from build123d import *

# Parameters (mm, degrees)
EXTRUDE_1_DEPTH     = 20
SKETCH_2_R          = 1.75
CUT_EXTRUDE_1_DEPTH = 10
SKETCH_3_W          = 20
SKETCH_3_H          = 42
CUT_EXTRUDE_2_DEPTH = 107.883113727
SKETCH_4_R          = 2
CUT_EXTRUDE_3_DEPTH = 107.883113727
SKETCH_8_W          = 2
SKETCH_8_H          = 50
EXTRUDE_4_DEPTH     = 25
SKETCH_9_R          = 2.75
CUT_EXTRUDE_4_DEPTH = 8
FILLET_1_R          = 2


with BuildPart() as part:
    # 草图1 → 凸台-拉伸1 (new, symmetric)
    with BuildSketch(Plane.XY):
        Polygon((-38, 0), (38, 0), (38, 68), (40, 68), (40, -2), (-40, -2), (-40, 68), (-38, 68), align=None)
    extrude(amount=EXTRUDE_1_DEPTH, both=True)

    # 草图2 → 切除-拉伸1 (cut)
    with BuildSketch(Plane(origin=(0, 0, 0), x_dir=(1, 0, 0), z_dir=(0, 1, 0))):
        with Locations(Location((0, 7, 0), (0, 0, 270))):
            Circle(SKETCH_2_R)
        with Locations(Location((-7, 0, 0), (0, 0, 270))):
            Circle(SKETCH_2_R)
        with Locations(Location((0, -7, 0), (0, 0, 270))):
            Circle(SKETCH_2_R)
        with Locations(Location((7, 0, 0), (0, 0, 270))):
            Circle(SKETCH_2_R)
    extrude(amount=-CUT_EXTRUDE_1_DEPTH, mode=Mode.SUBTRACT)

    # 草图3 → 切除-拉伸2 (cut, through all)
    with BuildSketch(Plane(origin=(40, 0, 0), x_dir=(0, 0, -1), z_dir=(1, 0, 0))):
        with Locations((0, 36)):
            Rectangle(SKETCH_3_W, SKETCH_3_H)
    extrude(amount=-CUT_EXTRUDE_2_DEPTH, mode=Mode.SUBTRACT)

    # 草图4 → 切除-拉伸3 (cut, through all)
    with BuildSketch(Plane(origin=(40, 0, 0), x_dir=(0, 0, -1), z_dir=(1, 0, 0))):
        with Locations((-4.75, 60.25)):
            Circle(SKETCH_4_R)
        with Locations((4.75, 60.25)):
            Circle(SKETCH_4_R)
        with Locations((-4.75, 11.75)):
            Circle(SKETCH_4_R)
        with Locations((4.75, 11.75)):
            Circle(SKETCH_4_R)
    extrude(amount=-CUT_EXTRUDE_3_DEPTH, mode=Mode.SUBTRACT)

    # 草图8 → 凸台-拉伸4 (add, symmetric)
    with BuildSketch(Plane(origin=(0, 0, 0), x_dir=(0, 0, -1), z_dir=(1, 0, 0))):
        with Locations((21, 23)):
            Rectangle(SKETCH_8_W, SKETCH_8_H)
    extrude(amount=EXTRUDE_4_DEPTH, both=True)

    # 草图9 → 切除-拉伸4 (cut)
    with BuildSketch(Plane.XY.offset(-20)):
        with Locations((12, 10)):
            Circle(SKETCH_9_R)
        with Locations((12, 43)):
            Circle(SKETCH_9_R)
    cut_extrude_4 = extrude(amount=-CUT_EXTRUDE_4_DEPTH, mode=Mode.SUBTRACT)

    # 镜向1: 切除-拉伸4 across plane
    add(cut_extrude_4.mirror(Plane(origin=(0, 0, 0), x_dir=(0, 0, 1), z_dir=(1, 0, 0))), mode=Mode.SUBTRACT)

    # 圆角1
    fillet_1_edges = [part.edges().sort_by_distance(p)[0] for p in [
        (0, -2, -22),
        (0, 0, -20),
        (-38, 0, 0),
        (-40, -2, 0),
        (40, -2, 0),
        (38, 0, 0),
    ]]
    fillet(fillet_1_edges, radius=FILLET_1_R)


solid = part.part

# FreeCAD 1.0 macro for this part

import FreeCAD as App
import Part
import Sketcher

V = App.Vector


def edges_at(feature, points):
    """Names of the edges that pass closest to the given points."""
    edges = feature.Shape.Edges
    near = lambda p: min(range(len(edges)), key=lambda i: edges[i].distToShape(Part.Vertex(*p))[0])
    return sorted({f"Edge{near(p) + 1}" for p in points})


def add_polygon(sketch, points):
    """Adds a closed chain of lines whose ends are joined by coincident constraints."""
    first, n = sketch.GeometryCount, len(points)
    for a, b in zip(points, points[1:] + points[:1]):
        sketch.addGeometry(Part.LineSegment(App.Vector(*a, 0), App.Vector(*b, 0)), False)
    for i in range(n):
        sketch.addConstraint(Sketcher.Constraint("Coincident", first + i, 2, first + (i + 1) % n, 1))

doc = App.newDocument("Part")
params = doc.addObject("Spreadsheet::Sheet", "Params")
for row, (alias, value) in enumerate([
    ("sketch1_width", "76 mm"),
    ("sketch1_width2", "2 mm"),
    ("sketch1_height", "68 mm"),
    ("sketch1_height2", "70 mm"),
    ("pad1_length", "40 mm"),
    ("sketch2_diameter", "3.5 mm"),
    ("pocket1_length", "10 mm"),
    ("sketch3_width", "42 mm"),
    ("sketch3_height", "20 mm"),
    ("sketch4_diameter", "4 mm"),
    ("sketch5_width", "50 mm"),
    ("sketch5_height", "2 mm"),
    ("pad2_length", "50 mm"),
    ("sketch6_diameter", "5.5 mm"),
    ("pocket4_length", "8 mm"),
    ("fillet_radius", "2 mm"),
], start=1):
    params.set(f"A{row}", alias)
    params.set(f"B{row}", "=" + value)
    params.setAlias(f"B{row}", alias)

body = doc.addObject("PartDesign::Body", "Body")

sketch1 = body.newObject("Sketcher::SketchObject", "Sketch")
sketch1.AttachmentSupport = (doc.getObject("XY_Plane"), [""])
sketch1.MapMode = "FlatFace"
add_polygon(sketch1, [(38, 0), (-38, 0), (-38, 68), (-40, 68), (-40, -2), (40, -2), (40, 68), (38, 68)])
sketch1.addConstraint(Sketcher.Constraint("Horizontal", 0))
sketch1.addConstraint(Sketcher.Constraint("Vertical", 1))
sketch1.addConstraint(Sketcher.Constraint("Horizontal", 2))
sketch1.addConstraint(Sketcher.Constraint("Vertical", 3))
sketch1.addConstraint(Sketcher.Constraint("Horizontal", 4))
sketch1.addConstraint(Sketcher.Constraint("Vertical", 5))
sketch1.addConstraint(Sketcher.Constraint("Horizontal", 6))
sketch1.addConstraint(Sketcher.Constraint("Vertical", 7))
sketch1.addConstraint(Sketcher.Constraint("Symmetric", 0, 2, 7, 2, -1, 1))
sketch1.addConstraint(Sketcher.Constraint("Symmetric", 2, 2, 5, 2, -2))
sketch1.addConstraint(Sketcher.Constraint("DistanceX", 0, 2, 0, 1, 76.0))
sketch1.addConstraint(Sketcher.Constraint("DistanceX", 2, 2, 2, 1, 2.0))
sketch1.addConstraint(Sketcher.Constraint("DistanceY", 1, 1, 1, 2, 68.0))
sketch1.addConstraint(Sketcher.Constraint("DistanceY", 3, 2, 3, 1, 70.0))
sketch1.setExpression("Constraints[18]", "Params.sketch1_width")
sketch1.setExpression("Constraints[19]", "Params.sketch1_width2")
sketch1.setExpression("Constraints[20]", "Params.sketch1_height")
sketch1.setExpression("Constraints[21]", "Params.sketch1_height2")
pad1 = body.newObject("PartDesign::Pad", "Pad")
pad1.Profile = sketch1
pad1.setExpression("Length", "Params.pad1_length")
pad1.Midplane = True

sketch2 = body.newObject("Sketcher::SketchObject", "Sketch001")
sketch2.AttachmentSupport = (doc.getObject("XZ_Plane"), [""])
sketch2.MapMode = "FlatFace"
sketch2.addGeometry(Part.Circle(V(0, -7, 0), V(0, 0, 1), 1.8), False)
sketch2.addGeometry(Part.Circle(V(-7, 0, 0), V(0, 0, 1), 1.8), False)
sketch2.addGeometry(Part.Circle(V(0, 7, 0), V(0, 0, 1), 1.8), False)
sketch2.addGeometry(Part.Circle(V(7, 0, 0), V(0, 0, 1), 1.8), False)
sketch2.addConstraint(Sketcher.Constraint("Equal", 0, 1))
sketch2.addConstraint(Sketcher.Constraint("Equal", 1, 2))
sketch2.addConstraint(Sketcher.Constraint("Equal", 2, 3))
sketch2.addConstraint(Sketcher.Constraint("Symmetric", 0, 3, 2, 3, -1, 1))
sketch2.addConstraint(Sketcher.Constraint("Symmetric", 1, 3, 3, 3, -1, 1))
sketch2.addConstraint(Sketcher.Constraint("PointOnObject", 0, 3, -2))
sketch2.addConstraint(Sketcher.Constraint("PointOnObject", 1, 3, -1))
sketch2.addConstraint(Sketcher.Constraint("Diameter", 0, 3.5))
sketch2.addConstraint(Sketcher.Constraint("DistanceY", 0, 3, -1, 1, 7.0))
sketch2.addConstraint(Sketcher.Constraint("DistanceX", 1, 3, -1, 1, 7.0))
sketch2.setExpression("Constraints[7]", "Params.sketch2_diameter")
pocket1 = body.newObject("PartDesign::Pocket", "Pocket")
pocket1.Profile = sketch2
pocket1.setExpression("Length", "Params.pocket1_length")
pocket1.Reversed = True

sketch3 = body.newObject("Sketcher::SketchObject", "Sketch002")
sketch3.AttachmentSupport = (doc.getObject("YZ_Plane"), [""])
sketch3.MapMode = "FlatFace"
sketch3.AttachmentOffset = App.Placement(V(0, 0, 40), App.Rotation())
add_polygon(sketch3, [(57, 10), (15, 10), (15, -10), (57, -10)])
sketch3.addConstraint(Sketcher.Constraint("Horizontal", 0))
sketch3.addConstraint(Sketcher.Constraint("Vertical", 1))
sketch3.addConstraint(Sketcher.Constraint("Horizontal", 2))
sketch3.addConstraint(Sketcher.Constraint("Vertical", 3))
sketch3.addConstraint(Sketcher.Constraint("DistanceX", 0, 2, 0, 1, 42.0))
sketch3.addConstraint(Sketcher.Constraint("DistanceY", 1, 2, 1, 1, 20.0))
sketch3.addConstraint(Sketcher.Constraint("DistanceX", -1, 1, 0, 2, 15.0))
sketch3.addConstraint(Sketcher.Constraint("DistanceY", -1, 1, 0, 2, 10.0))
sketch3.setExpression("Constraints[8]", "Params.sketch3_width")
sketch3.setExpression("Constraints[9]", "Params.sketch3_height")
pocket2 = body.newObject("PartDesign::Pocket", "Pocket001")
pocket2.Profile = sketch3
pocket2.Type = "ThroughAll"

sketch4 = body.newObject("Sketcher::SketchObject", "Sketch003")
sketch4.AttachmentSupport = (doc.getObject("YZ_Plane"), [""])
sketch4.MapMode = "FlatFace"
sketch4.AttachmentOffset = App.Placement(V(0, 0, 40), App.Rotation())
sketch4.addGeometry(Part.Circle(V(60.2, 4.8, 0), V(0, 0, 1), 2), False)
sketch4.addGeometry(Part.Circle(V(60.2, -4.8, 0), V(0, 0, 1), 2), False)
sketch4.addGeometry(Part.Circle(V(11.8, 4.8, 0), V(0, 0, 1), 2), False)
sketch4.addGeometry(Part.Circle(V(11.8, -4.8, 0), V(0, 0, 1), 2), False)
sketch4.addConstraint(Sketcher.Constraint("Equal", 0, 1))
sketch4.addConstraint(Sketcher.Constraint("Equal", 1, 2))
sketch4.addConstraint(Sketcher.Constraint("Equal", 2, 3))
sketch4.addConstraint(Sketcher.Constraint("Symmetric", 0, 3, 1, 3, -1))
sketch4.addConstraint(Sketcher.Constraint("Symmetric", 2, 3, 3, 3, -1))
sketch4.addConstraint(Sketcher.Constraint("Horizontal", 0, 3, 2, 3))
sketch4.addConstraint(Sketcher.Constraint("Diameter", 0, 4.0))
sketch4.addConstraint(Sketcher.Constraint("DistanceY", 1, 3, 0, 3, 9.5))
sketch4.addConstraint(Sketcher.Constraint("DistanceX", 2, 3, 0, 3, 48.5))
sketch4.addConstraint(Sketcher.Constraint("DistanceX", -1, 1, 0, 3, 60.25))
sketch4.setExpression("Constraints[6]", "Params.sketch4_diameter")
pocket3 = body.newObject("PartDesign::Pocket", "Pocket002")
pocket3.Profile = sketch4
pocket3.Type = "ThroughAll"

sketch5 = body.newObject("Sketcher::SketchObject", "Sketch004")
sketch5.AttachmentSupport = (doc.getObject("YZ_Plane"), [""])
sketch5.MapMode = "FlatFace"
add_polygon(sketch5, [(48, -20), (-2, -20), (-2, -22), (48, -22)])
sketch5.addConstraint(Sketcher.Constraint("Horizontal", 0))
sketch5.addConstraint(Sketcher.Constraint("Vertical", 1))
sketch5.addConstraint(Sketcher.Constraint("Horizontal", 2))
sketch5.addConstraint(Sketcher.Constraint("Vertical", 3))
sketch5.addConstraint(Sketcher.Constraint("DistanceX", 0, 2, 0, 1, 50.0))
sketch5.addConstraint(Sketcher.Constraint("DistanceY", 1, 2, 1, 1, 2.0))
sketch5.addConstraint(Sketcher.Constraint("DistanceX", 0, 2, -1, 1, 2.0))
sketch5.addConstraint(Sketcher.Constraint("DistanceY", 0, 2, -1, 1, 20.0))
sketch5.setExpression("Constraints[8]", "Params.sketch5_width")
sketch5.setExpression("Constraints[9]", "Params.sketch5_height")
pad2 = body.newObject("PartDesign::Pad", "Pad001")
pad2.Profile = sketch5
pad2.setExpression("Length", "Params.pad2_length")
pad2.Midplane = True

sketch6 = body.newObject("Sketcher::SketchObject", "Sketch005")
sketch6.AttachmentSupport = (doc.getObject("XY_Plane"), [""])
sketch6.MapMode = "FlatFace"
sketch6.AttachmentOffset = App.Placement(V(0, 0, -20), App.Rotation())
sketch6.addGeometry(Part.Circle(V(12, 10, 0), V(0, 0, 1), 2.8), False)
sketch6.addGeometry(Part.Circle(V(12, 43, 0), V(0, 0, 1), 2.8), False)
sketch6.addConstraint(Sketcher.Constraint("Equal", 0, 1))
sketch6.addConstraint(Sketcher.Constraint("Vertical", 0, 3, 1, 3))
sketch6.addConstraint(Sketcher.Constraint("Diameter", 0, 5.5))
sketch6.addConstraint(Sketcher.Constraint("DistanceX", -1, 1, 0, 3, 12.0))
sketch6.addConstraint(Sketcher.Constraint("DistanceY", -1, 1, 0, 3, 10.0))
sketch6.addConstraint(Sketcher.Constraint("DistanceY", -1, 1, 1, 3, 43.0))
sketch6.setExpression("Constraints[2]", "Params.sketch6_diameter")
pocket4 = body.newObject("PartDesign::Pocket", "Pocket003")
pocket4.Profile = sketch6
pocket4.setExpression("Length", "Params.pocket4_length")
doc.recompute()

mirrored = body.newObject("PartDesign::Mirrored", "Mirrored")
mirrored.Originals = [pocket4]
mirrored.MirrorPlane = (doc.getObject("YZ_Plane"), [""])
body.Tip = mirrored
doc.recompute()

fillet = body.newObject("PartDesign::Fillet", "Fillet")
fillet.Base = (mirrored, edges_at(mirrored, [
    (0, -2, -22),
    (0, 0, -20),
    (-38, 0, 0),
    (-40, -2, 0),
    (40, -2, 0),
    (38, 0, 0),
]))
fillet.setExpression("Radius", "Params.fillet_radius")

doc.recompute()
